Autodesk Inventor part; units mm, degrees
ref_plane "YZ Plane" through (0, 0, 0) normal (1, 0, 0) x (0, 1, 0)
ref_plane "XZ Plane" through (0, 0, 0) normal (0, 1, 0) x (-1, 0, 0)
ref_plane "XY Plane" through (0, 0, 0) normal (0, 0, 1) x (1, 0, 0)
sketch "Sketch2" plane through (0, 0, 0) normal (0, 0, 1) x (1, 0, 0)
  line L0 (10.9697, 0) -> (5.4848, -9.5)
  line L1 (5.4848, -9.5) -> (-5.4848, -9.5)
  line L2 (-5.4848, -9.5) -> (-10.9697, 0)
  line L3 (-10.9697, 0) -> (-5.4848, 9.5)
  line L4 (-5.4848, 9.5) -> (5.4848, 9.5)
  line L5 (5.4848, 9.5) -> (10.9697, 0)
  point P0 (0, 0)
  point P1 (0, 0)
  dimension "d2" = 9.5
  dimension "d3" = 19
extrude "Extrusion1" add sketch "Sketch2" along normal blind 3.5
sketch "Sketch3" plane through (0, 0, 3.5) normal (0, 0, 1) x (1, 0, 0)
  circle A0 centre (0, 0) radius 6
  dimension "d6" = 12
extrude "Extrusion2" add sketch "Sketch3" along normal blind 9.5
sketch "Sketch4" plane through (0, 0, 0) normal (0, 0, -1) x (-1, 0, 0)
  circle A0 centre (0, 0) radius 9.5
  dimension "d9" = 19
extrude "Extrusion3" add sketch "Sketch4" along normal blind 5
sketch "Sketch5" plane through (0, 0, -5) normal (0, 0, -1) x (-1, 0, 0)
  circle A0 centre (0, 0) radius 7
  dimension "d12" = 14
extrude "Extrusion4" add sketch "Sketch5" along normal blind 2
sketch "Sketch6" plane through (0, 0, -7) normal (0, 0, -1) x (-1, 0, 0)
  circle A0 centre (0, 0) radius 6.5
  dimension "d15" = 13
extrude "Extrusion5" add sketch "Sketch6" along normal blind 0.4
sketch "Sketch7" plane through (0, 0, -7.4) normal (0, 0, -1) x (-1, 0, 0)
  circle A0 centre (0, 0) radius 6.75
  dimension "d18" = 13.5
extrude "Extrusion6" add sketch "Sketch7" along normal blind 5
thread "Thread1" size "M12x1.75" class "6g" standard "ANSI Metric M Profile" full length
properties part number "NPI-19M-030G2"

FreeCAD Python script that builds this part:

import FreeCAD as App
import Part
import Sketcher

V = App.Vector
Q = App.Units.Quantity


def add_polygon(sketch, points):
    """Adds a closed chain of lines whose ends are joined by coincident constraints."""
    first, n = sketch.GeometryCount, len(points)
    for a, b in zip(points, points[1:] + points[:1]):
        sketch.addGeometry(Part.LineSegment(App.Vector(*a, 0), App.Vector(*b, 0)), False)
    for i in range(n):
        sketch.addConstraint(Sketcher.Constraint("Coincident", first + i, 2, first + (i + 1) % n, 1))

doc = App.newDocument("Part")
body = doc.addObject("PartDesign::Body", "Body")

# Sketch on XY plane
sketch1 = body.newObject("Sketcher::SketchObject", "Sketch")
sketch1.AttachmentSupport = (doc.getObject("XY_Plane"), [""])
sketch1.MapMode = "FlatFace"
add_polygon(sketch1, [(5, -10), (11, 0), (5, 10), (-5, 10), (-11, 0), (-5, -10)])  # lines 0-5
sketch1.addConstraint(Sketcher.Constraint("Horizontal", 2))
sketch1.addConstraint(Sketcher.Constraint("Horizontal", 5))
sketch1.addConstraint(Sketcher.Constraint("Symmetric", 0, 2, 3, 2, -1, 1))
sketch1.addConstraint(Sketcher.Constraint("Symmetric", 1, 2, 4, 2, -1, 1))
sketch1.addConstraint(Sketcher.Constraint("PointOnObject", 0, 2, -1))
sketch1.addConstraint(Sketcher.Constraint("Parallel", 0, 3))
sketch1.addConstraint(Sketcher.Constraint("Vertical", 2, 2, 4, 2))
sketch1.addConstraint(Sketcher.Constraint("DistanceY", 4, 2, 2, 2, Q("19 mm")))
sketch1.addConstraint(Sketcher.Constraint("Angle", 0, Q("59.9997 deg")))
sketch1.addConstraint(Sketcher.Constraint("DistanceX", 2, 2, 2, 1, Q("10.9696 mm")))
pad1 = body.newObject("PartDesign::Pad", "Pad")
pad1.Profile = sketch1
pad1.Length = 3.5

# Sketch on XY plane
sketch2 = body.newObject("Sketcher::SketchObject", "Sketch001")
sketch2.AttachmentSupport = (doc.getObject("XY_Plane"), [""])
sketch2.MapMode = "FlatFace"
sketch2.AttachmentOffset = App.Placement(V(0, 0, 3.5), App.Rotation())
sketch2.addGeometry(Part.Circle(V(0, 0, 0), V(0, 0, 1), 6), False)
sketch2.addConstraint(Sketcher.Constraint("Coincident", 0, 3, -1, 1))
sketch2.addConstraint(Sketcher.Constraint("Diameter", 0, Q("12 mm")))
pad2 = body.newObject("PartDesign::Pad", "Pad001")
pad2.Profile = sketch2
pad2.Length = 9.5

# Sketch on XY plane
sketch3 = body.newObject("Sketcher::SketchObject", "Sketch002")
sketch3.AttachmentSupport = (doc.getObject("XY_Plane"), [""])
sketch3.MapMode = "FlatFace"
sketch3.addGeometry(Part.Circle(V(0, 0, 0), V(0, 0, 1), 10), False)
sketch3.addConstraint(Sketcher.Constraint("Coincident", 0, 3, -1, 1))
sketch3.addConstraint(Sketcher.Constraint("Diameter", 0, Q("19 mm")))
pad3 = body.newObject("PartDesign::Pad", "Pad002")
pad3.Profile = sketch3
pad3.Length = 5
pad3.Reversed = True

# Sketch on XY plane
sketch4 = body.newObject("Sketcher::SketchObject", "Sketch003")
sketch4.AttachmentSupport = (doc.getObject("XY_Plane"), [""])
sketch4.MapMode = "FlatFace"
sketch4.AttachmentOffset = App.Placement(V(0, 0, -5), App.Rotation())
sketch4.addGeometry(Part.Circle(V(0, 0, 0), V(0, 0, 1), 7), False)
sketch4.addConstraint(Sketcher.Constraint("Coincident", 0, 3, -1, 1))
sketch4.addConstraint(Sketcher.Constraint("Diameter", 0, Q("14 mm")))
pad4 = body.newObject("PartDesign::Pad", "Pad003")
pad4.Profile = sketch4
pad4.Length = 2
pad4.Reversed = True

# Sketch on XY plane
sketch5 = body.newObject("Sketcher::SketchObject", "Sketch004")
sketch5.AttachmentSupport = (doc.getObject("XY_Plane"), [""])
sketch5.MapMode = "FlatFace"
sketch5.AttachmentOffset = App.Placement(V(0, 0, -7), App.Rotation())
sketch5.addGeometry(Part.Circle(V(0, 0, 0), V(0, 0, 1), 6), False)
sketch5.addConstraint(Sketcher.Constraint("Coincident", 0, 3, -1, 1))
sketch5.addConstraint(Sketcher.Constraint("Diameter", 0, Q("13 mm")))
pad5 = body.newObject("PartDesign::Pad", "Pad004")
pad5.Profile = sketch5
pad5.Length = 0.4
pad5.Reversed = True

# Sketch on XY plane
sketch6 = body.newObject("Sketcher::SketchObject", "Sketch005")
sketch6.AttachmentSupport = (doc.getObject("XY_Plane"), [""])
sketch6.MapMode = "FlatFace"
sketch6.AttachmentOffset = App.Placement(V(0, 0, -7.4), App.Rotation())
sketch6.addGeometry(Part.Circle(V(0, 0, 0), V(0, 0, 1), 7), False)
sketch6.addConstraint(Sketcher.Constraint("Coincident", 0, 3, -1, 1))
sketch6.addConstraint(Sketcher.Constraint("Diameter", 0, Q("13.5 mm")))
pad6 = body.newObject("PartDesign::Pad", "Pad005")
pad6.Profile = sketch6
pad6.Length = 5
pad6.Reversed = True

doc.recompute()
